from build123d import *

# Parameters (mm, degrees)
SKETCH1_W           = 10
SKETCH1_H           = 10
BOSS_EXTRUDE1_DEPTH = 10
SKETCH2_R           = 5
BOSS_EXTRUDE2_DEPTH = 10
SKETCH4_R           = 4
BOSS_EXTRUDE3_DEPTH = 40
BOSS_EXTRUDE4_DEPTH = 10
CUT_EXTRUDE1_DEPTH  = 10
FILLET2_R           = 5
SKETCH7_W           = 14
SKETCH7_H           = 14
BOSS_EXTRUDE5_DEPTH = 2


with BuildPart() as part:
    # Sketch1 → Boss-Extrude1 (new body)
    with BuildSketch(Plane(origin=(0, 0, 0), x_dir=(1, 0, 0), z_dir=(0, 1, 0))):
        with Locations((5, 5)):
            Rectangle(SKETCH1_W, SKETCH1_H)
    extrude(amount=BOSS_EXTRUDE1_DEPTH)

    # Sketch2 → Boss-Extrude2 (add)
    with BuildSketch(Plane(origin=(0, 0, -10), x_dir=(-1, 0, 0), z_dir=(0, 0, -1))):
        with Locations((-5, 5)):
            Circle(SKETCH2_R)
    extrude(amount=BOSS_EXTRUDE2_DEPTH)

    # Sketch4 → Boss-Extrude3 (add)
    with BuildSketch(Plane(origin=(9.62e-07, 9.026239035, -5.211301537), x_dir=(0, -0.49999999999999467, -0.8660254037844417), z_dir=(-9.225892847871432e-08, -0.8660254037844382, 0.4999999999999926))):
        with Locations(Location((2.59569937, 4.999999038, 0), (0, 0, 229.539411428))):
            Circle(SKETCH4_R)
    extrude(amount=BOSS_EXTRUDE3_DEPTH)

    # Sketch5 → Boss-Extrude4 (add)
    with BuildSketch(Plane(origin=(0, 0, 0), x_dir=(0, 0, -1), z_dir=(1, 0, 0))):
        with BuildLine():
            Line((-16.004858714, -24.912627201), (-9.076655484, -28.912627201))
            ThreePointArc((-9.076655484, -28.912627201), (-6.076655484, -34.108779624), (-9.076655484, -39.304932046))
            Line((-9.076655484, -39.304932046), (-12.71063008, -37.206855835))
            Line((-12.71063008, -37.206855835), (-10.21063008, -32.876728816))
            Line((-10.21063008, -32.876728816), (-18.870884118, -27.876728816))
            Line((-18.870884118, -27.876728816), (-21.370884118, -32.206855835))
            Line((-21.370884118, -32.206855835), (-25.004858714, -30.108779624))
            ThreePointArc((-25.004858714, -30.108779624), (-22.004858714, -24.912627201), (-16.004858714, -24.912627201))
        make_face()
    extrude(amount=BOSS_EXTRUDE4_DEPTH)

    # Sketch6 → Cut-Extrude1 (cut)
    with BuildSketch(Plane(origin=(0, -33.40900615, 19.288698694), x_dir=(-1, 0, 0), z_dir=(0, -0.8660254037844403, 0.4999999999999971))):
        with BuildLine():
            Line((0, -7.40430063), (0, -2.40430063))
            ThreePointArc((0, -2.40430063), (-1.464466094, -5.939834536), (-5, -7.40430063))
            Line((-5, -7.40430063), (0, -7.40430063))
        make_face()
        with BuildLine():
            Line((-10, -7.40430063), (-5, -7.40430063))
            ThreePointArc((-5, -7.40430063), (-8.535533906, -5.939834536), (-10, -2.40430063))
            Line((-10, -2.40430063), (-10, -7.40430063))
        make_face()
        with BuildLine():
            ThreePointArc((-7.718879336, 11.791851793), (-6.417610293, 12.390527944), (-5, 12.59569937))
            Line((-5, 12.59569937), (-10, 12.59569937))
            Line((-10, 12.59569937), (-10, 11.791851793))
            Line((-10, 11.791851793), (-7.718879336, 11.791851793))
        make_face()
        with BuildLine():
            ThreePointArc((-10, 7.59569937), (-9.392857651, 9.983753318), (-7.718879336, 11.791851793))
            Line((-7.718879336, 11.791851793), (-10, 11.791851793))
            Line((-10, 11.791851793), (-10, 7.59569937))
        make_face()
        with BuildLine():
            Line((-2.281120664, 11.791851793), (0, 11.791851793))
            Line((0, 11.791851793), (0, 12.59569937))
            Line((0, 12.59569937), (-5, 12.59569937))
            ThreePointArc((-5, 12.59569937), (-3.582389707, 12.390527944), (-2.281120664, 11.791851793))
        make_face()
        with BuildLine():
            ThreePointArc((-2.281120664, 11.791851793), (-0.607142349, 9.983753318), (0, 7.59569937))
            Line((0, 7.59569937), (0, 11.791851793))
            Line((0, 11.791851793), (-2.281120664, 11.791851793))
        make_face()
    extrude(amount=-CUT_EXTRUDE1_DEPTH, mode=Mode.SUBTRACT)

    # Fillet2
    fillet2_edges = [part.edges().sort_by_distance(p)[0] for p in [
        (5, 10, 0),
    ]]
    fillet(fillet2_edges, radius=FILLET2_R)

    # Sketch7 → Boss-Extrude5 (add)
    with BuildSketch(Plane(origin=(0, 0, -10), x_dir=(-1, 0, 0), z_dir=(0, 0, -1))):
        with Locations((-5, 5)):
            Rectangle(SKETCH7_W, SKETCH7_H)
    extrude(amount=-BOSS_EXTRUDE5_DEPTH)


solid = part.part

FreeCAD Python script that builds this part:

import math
import FreeCAD as App
import Part
import Sketcher
Q = App.Units.Quantity


def edges_at(feature, points):
    """Names of the edges that pass closest to the given points."""
    edges = feature.Shape.Edges
    near = lambda p: min(range(len(edges)), key=lambda i: edges[i].distToShape(Part.Vertex(*p))[0])
    return sorted({f"Edge{near(p) + 1}" for p in points})


def add_polygon(sketch, points):
    """Adds a closed chain of lines whose ends are joined by coincident constraints."""
    first, n = sketch.GeometryCount, len(points)
    for a, b in zip(points, points[1:] + points[:1]):
        sketch.addGeometry(Part.LineSegment(App.Vector(*a, 0), App.Vector(*b, 0)), False)
    for i in range(n):
        sketch.addConstraint(Sketcher.Constraint("Coincident", first + i, 2, first + (i + 1) % n, 1))

doc = App.newDocument("Part")
params = doc.addObject("Spreadsheet::Sheet", "Params")
for row, (alias, value) in enumerate([
    ("sketch1_width", "10 mm"),
    ("pad1_length", "10 mm"),
    ("sketch2_diameter", "10 mm"),
    ("pad2_length", "10 mm"),
    ("sketch3_diameter", "8 mm"),
    ("pad3_length", "40 mm"),
    ("sketch4_radius", "6 mm"),
    ("sketch4_length", "8 mm"),
    ("sketch4_length2", "5 mm"),
    ("sketch4_length3", "10 mm"),
    ("pad4_length", "10 mm"),
    ("sketch5_radius", "5 mm"),
    ("pocket1_length", "10 mm"),
    ("fillet_radius", "5 mm"),
    ("sketch6_width", "14 mm"),
    ("pad5_length", "2 mm"),
], start=1):
    params.set(f"A{row}", alias)
    params.set(f"B{row}", "=" + value)
    params.setAlias(f"B{row}", alias)

body = doc.addObject("PartDesign::Body", "Body")

# Sketch on XZ plane
sketch1 = doc.addObject("Sketcher::SketchObject", "Sketch")
body.addObject(sketch1)
sketch1.AttachmentSupport = (doc.XZ_Plane, [""])
sketch1.MapMode = "FlatFace"
add_polygon(sketch1, [(0, -10), (0, 0), (10, 0), (10, -10)])  # lines 0-3
sketch1.addConstraint(Sketcher.Constraint("Vertical", 0))
sketch1.addConstraint(Sketcher.Constraint("Horizontal", 1))
sketch1.addConstraint(Sketcher.Constraint("Vertical", 2))
sketch1.addConstraint(Sketcher.Constraint("Horizontal", 3))
sketch1.addConstraint(Sketcher.Constraint("Coincident", 0, 2, -1, 1))
sketch1.addConstraint(Sketcher.Constraint("Equal", 3, 0))
sketch1.addConstraint(Sketcher.Constraint("DistanceX", 1, 1, 1, 2, 10.0))
sketch1.setExpression("Constraints[10]", "Params.sketch1_width")
pad1 = doc.addObject("PartDesign::Pad", "Pad")
body.addObject(pad1)
pad1.Profile = sketch1
pad1.setExpression("Length", "Params.pad1_length")
pad1.Reversed = True

# Sketch on XY plane
sketch2 = doc.addObject("Sketcher::SketchObject", "Sketch001")
body.addObject(sketch2)
sketch2.AttachmentSupport = (doc.XY_Plane, [""])
sketch2.MapMode = "FlatFace"
sketch2.AttachmentOffset = App.Placement(App.Vector(0, 0, -10), App.Rotation())
sketch2.addGeometry(Part.Circle(App.Vector(5, 5, 0), App.Vector(0, 0, 1), 5), False)
sketch2.addConstraint(Sketcher.Constraint("Diameter", 0, 10.0))
sketch2.addConstraint(Sketcher.Constraint("DistanceX", -1, 1, 0, 3, 5.0))
sketch2.addConstraint(Sketcher.Constraint("DistanceY", -1, 1, 0, 3, 5.0))
sketch2.setExpression("Constraints[0]", "Params.sketch2_diameter")
pad2 = doc.addObject("PartDesign::Pad", "Pad001")
body.addObject(pad2)
pad2.Profile = sketch2
pad2.setExpression("Length", "Params.pad2_length")
pad2.Reversed = True

# Sketch on an angled plane
sketch3 = doc.addObject("Sketcher::SketchObject", "Sketch002")
body.addObject(sketch3)
sketch3.Placement = App.Placement(App.Vector(0.000001, 9.026239, -5.211302), App.Rotation(App.Vector(0, -0.5, -0.866025404), App.Vector(1, -0.00000008, 0.000000046), App.Vector(-0.000000092, -0.866025404, 0.5), "ZXY"))
sketch3.addGeometry(Part.Circle(App.Vector(2.595699, 4.999999, 0), App.Vector(0, 0, 1), 4), False)
sketch3.addConstraint(Sketcher.Constraint("Diameter", 0, 8.0))
sketch3.addConstraint(Sketcher.Constraint("DistanceY", -1, 1, 0, 3, 4.999999))
sketch3.addConstraint(Sketcher.Constraint("DistanceX", -1, 1, 0, 3, 2.595699))
sketch3.setExpression("Constraints[0]", "Params.sketch3_diameter")
pad3 = doc.addObject("PartDesign::Pad", "Pad002")
body.addObject(pad3)
pad3.Profile = sketch3
pad3.setExpression("Length", "Params.pad3_length")

# Sketch on YZ plane
sketch4 = doc.addObject("Sketcher::SketchObject", "Sketch003")
body.addObject(sketch4)
sketch4.AttachmentSupport = (doc.YZ_Plane, [""])
sketch4.MapMode = "FlatFace"
sketch4.addGeometry(Part.LineSegment(App.Vector(-28.912627, 9.076655, 0), App.Vector(-24.912627, 16.004859, 0)), False)
sketch4.addGeometry(Part.ArcOfCircle(Part.Circle(App.Vector(-30.10878, 19.004859, 0), App.Vector(0, 0, 1), 6), math.radians(-30), math.radians(90)), False)
sketch4.addGeometry(Part.LineSegment(App.Vector(-30.10878, 25.004859, 0), App.Vector(-32.206856, 21.370884, 0)), False)
sketch4.addGeometry(Part.LineSegment(App.Vector(-32.206856, 21.370884, 0), App.Vector(-27.876729, 18.870884, 0)), False)
sketch4.addGeometry(Part.LineSegment(App.Vector(-27.876729, 18.870884, 0), App.Vector(-32.876729, 10.21063, 0)), False)
sketch4.addGeometry(Part.LineSegment(App.Vector(-32.876729, 10.21063, 0), App.Vector(-37.206856, 12.71063, 0)), False)
sketch4.addGeometry(Part.LineSegment(App.Vector(-37.206856, 12.71063, 0), App.Vector(-39.304932, 9.076655, 0)), False)
sketch4.addGeometry(Part.ArcOfCircle(Part.Circle(App.Vector(-34.10878, 12.076655, 0), App.Vector(0, 0, 1), 6), math.radians(-150), math.radians(-30)), False)
sketch4.addConstraint(Sketcher.Constraint("Tangent", 0, 2, 1, 1))
sketch4.addConstraint(Sketcher.Constraint("Coincident", 1, 2, 2, 1))
sketch4.addConstraint(Sketcher.Constraint("Coincident", 2, 2, 3, 1))
sketch4.addConstraint(Sketcher.Constraint("Coincident", 3, 2, 4, 1))
sketch4.addConstraint(Sketcher.Constraint("Coincident", 4, 2, 5, 1))
sketch4.addConstraint(Sketcher.Constraint("Coincident", 5, 2, 6, 1))
sketch4.addConstraint(Sketcher.Constraint("Coincident", 6, 2, 7, 1))
sketch4.addConstraint(Sketcher.Constraint("Tangent", 7, 2, 0, 1))
sketch4.addConstraint(Sketcher.Constraint("Equal", 1, 7))
sketch4.addConstraint(Sketcher.Constraint("Parallel", 0, 2))
sketch4.addConstraint(Sketcher.Constraint("Perpendicular", 2, 3))
sketch4.addConstraint(Sketcher.Constraint("Perpendicular", 3, 4))
sketch4.addConstraint(Sketcher.Constraint("Perpendicular", 4, 5))
sketch4.addConstraint(Sketcher.Constraint("Perpendicular", 5, 6))
sketch4.addConstraint(Sketcher.Constraint("Horizontal", 6, 2, 7, 2))
sketch4.addConstraint(Sketcher.Constraint("Equal", 3, 5))
sketch4.addConstraint(Sketcher.Constraint("Equal", 2, 6))
sketch4.addConstraint(Sketcher.Constraint("Radius", 1, 6.0))
sketch4.addConstraint(Sketcher.Constraint("Angle", 0, Q("60 deg")))
sketch4.addConstraint(Sketcher.Constraint("Distance", 0, 8.0))
sketch4.addConstraint(Sketcher.Constraint("Distance", 3, 5.0))
sketch4.addConstraint(Sketcher.Constraint("Distance", 4, 10.0))
sketch4.addConstraint(Sketcher.Constraint("DistanceX", 1, 3, -1, 1, 30.10878))
sketch4.addConstraint(Sketcher.Constraint("DistanceY", -1, 1, 1, 3, 19.004859))
sketch4.setExpression("Constraints[17]", "Params.sketch4_radius")
sketch4.setExpression("Constraints[19]", "Params.sketch4_length")
sketch4.setExpression("Constraints[20]", "Params.sketch4_length2")
sketch4.setExpression("Constraints[21]", "Params.sketch4_length3")
pad4 = doc.addObject("PartDesign::Pad", "Pad003")
body.addObject(pad4)
pad4.Profile = sketch4
pad4.setExpression("Length", "Params.pad4_length")

# Sketch on an angled plane
sketch5 = doc.addObject("Sketcher::SketchObject", "Sketch004")
body.addObject(sketch5)
sketch5.Placement = App.Placement(App.Vector(0, -33.409006, 19.288699), App.Rotation(App.Vector(-1, 0, 0), App.Vector(0, -0.5, -0.866025404), App.Vector(0, -0.866025404, 0.5), "ZXY"))
sketch5.addGeometry(Part.LineSegment(App.Vector(0, -7.404301, 0), App.Vector(0, -2.404301, 0)), False)
sketch5.addGeometry(Part.ArcOfCircle(Part.Circle(App.Vector(-5, -2.404301, 0), App.Vector(0, 0, 1), 5), math.radians(-90), math.radians(0)), False)
sketch5.addGeometry(Part.LineSegment(App.Vector(-5, -7.404301, 0), App.Vector(0, -7.404301, 0)), False)
sketch5.addGeometry(Part.LineSegment(App.Vector(-10, -7.404301, 0), App.Vector(-5, -7.404301, 0)), False)
sketch5.addGeometry(Part.ArcOfCircle(Part.Circle(App.Vector(-5, -2.404301, 0), App.Vector(0, 0, 1), 5), math.radians(180), math.radians(270)), False)
sketch5.addGeometry(Part.LineSegment(App.Vector(-10, -2.404301, 0), App.Vector(-10, -7.404301, 0)), False)
sketch5.addGeometry(Part.ArcOfCircle(Part.Circle(App.Vector(-5, 7.595699, 0), App.Vector(0, 0, 1), 5), math.radians(90), math.radians(122.94105)), False)
sketch5.addGeometry(Part.LineSegment(App.Vector(-5, 12.595699, 0), App.Vector(-10, 12.595699, 0)), False)
sketch5.addGeometry(Part.LineSegment(App.Vector(-10, 12.595699, 0), App.Vector(-10, 7.595699, 0)), False)
sketch5.addGeometry(Part.ArcOfCircle(Part.Circle(App.Vector(-5, 7.595699, 0), App.Vector(0, 0, 1), 5), math.radians(122.94105), math.radians(180)), False)
sketch5.addGeometry(Part.LineSegment(App.Vector(0, 12.595699, 0), App.Vector(-5, 12.595699, 0)), False)
sketch5.addGeometry(Part.ArcOfCircle(Part.Circle(App.Vector(-5, 7.595699, 0), App.Vector(0, 0, 1), 5), math.radians(57.05895), math.radians(90)), False)
sketch5.addGeometry(Part.ArcOfCircle(Part.Circle(App.Vector(-5, 7.595699, 0), App.Vector(0, 0, 1), 5), math.radians(0), math.radians(57.05895)), False)
sketch5.addGeometry(Part.LineSegment(App.Vector(0, 7.595699, 0), App.Vector(0, 12.595699, 0)), False)
sketch5.addConstraint(Sketcher.Constraint("Tangent", 0, 2, 1, 2))
sketch5.addConstraint(Sketcher.Constraint("Tangent", 1, 1, 2, 1))
sketch5.addConstraint(Sketcher.Constraint("Coincident", 2, 2, 0, 1))
sketch5.addConstraint(Sketcher.Constraint("Tangent", 3, 2, 4, 2))
sketch5.addConstraint(Sketcher.Constraint("Tangent", 4, 1, 5, 1))
sketch5.addConstraint(Sketcher.Constraint("Coincident", 5, 2, 3, 1))
sketch5.addConstraint(Sketcher.Constraint("Tangent", 6, 1, 7, 1))
sketch5.addConstraint(Sketcher.Constraint("Coincident", 7, 2, 8, 1))
sketch5.addConstraint(Sketcher.Constraint("Tangent", 8, 2, 9, 2))
sketch5.addConstraint(Sketcher.Constraint("Tangent", 9, 1, 6, 2))
sketch5.addConstraint(Sketcher.Constraint("Tangent", 10, 2, 11, 2))
sketch5.addConstraint(Sketcher.Constraint("Tangent", 11, 1, 12, 2))
sketch5.addConstraint(Sketcher.Constraint("Tangent", 12, 1, 13, 1))
sketch5.addConstraint(Sketcher.Constraint("Coincident", 13, 2, 10, 1))
sketch5.addConstraint(Sketcher.Constraint("Vertical", 0))
sketch5.addConstraint(Sketcher.Constraint("Horizontal", 2))
sketch5.addConstraint(Sketcher.Constraint("Horizontal", 3))
sketch5.addConstraint(Sketcher.Constraint("Vertical", 5))
sketch5.addConstraint(Sketcher.Constraint("Horizontal", 7))
sketch5.addConstraint(Sketcher.Constraint("Vertical", 8))
sketch5.addConstraint(Sketcher.Constraint("Horizontal", 10))
sketch5.addConstraint(Sketcher.Constraint("Vertical", 13))
sketch5.addConstraint(Sketcher.Constraint("Coincident", 4, 3, 1, 3))
sketch5.addConstraint(Sketcher.Constraint("Coincident", 11, 3, 6, 3))
sketch5.addConstraint(Sketcher.Constraint("Equal", 1, 4))
sketch5.addConstraint(Sketcher.Constraint("Equal", 4, 6))
sketch5.addConstraint(Sketcher.Constraint("Equal", 6, 9))
sketch5.addConstraint(Sketcher.Constraint("Equal", 9, 11))
sketch5.addConstraint(Sketcher.Constraint("Equal", 11, 12))
sketch5.addConstraint(Sketcher.Constraint("PointOnObject", 0, 2, -2))
sketch5.addConstraint(Sketcher.Constraint("PointOnObject", 12, 1, -2))
sketch5.addConstraint(Sketcher.Constraint("Horizontal", 9, 1, 11, 1))
sketch5.addConstraint(Sketcher.Constraint("Radius", 1, 5.0))
sketch5.addConstraint(Sketcher.Constraint("DistanceY", 1, 3, 6, 3, 10.0))
sketch5.addConstraint(Sketcher.Constraint("DistanceY", 1, 3, -1, 1, 2.404301))
sketch5.addConstraint(Sketcher.Constraint("DistanceX", 9, 1, -1, 1, 7.718879))
sketch5.setExpression("Constraints[32]", "Params.sketch5_radius")
pocket1 = doc.addObject("PartDesign::Pocket", "Pocket")
body.addObject(pocket1)
pocket1.Profile = sketch5
pocket1.setExpression("Length", "Params.pocket1_length")
doc.recompute()

fillet = doc.addObject("PartDesign::Fillet", "Fillet")
body.addObject(fillet)
fillet.Base = (pocket1, edges_at(pocket1, [(5, 10, 0)]))
fillet.setExpression("Radius", "Params.fillet_radius")

# Sketch on XY plane
sketch6 = doc.addObject("Sketcher::SketchObject", "Sketch005")
body.addObject(sketch6)
sketch6.AttachmentSupport = (doc.XY_Plane, [""])
sketch6.MapMode = "FlatFace"
sketch6.AttachmentOffset = App.Placement(App.Vector(0, 0, -10), App.Rotation())
add_polygon(sketch6, [(12, 12), (12, -2), (-2, -2), (-2, 12)])  # lines 0-3
sketch6.addConstraint(Sketcher.Constraint("Vertical", 0))
sketch6.addConstraint(Sketcher.Constraint("Horizontal", 1))
sketch6.addConstraint(Sketcher.Constraint("Vertical", 2))
sketch6.addConstraint(Sketcher.Constraint("Horizontal", 3))
sketch6.addConstraint(Sketcher.Constraint("Equal", 3, 0))
sketch6.addConstraint(Sketcher.Constraint("DistanceX", 1, 2, 1, 1, 14.0))
sketch6.addConstraint(Sketcher.Constraint("DistanceX", -1, 1, 0, 2, 12.0))
sketch6.addConstraint(Sketcher.Constraint("DistanceY", 0, 2, -1, 1, 2.0))
sketch6.setExpression("Constraints[9]", "Params.sketch6_width")
pad5 = doc.addObject("PartDesign::Pad", "Pad004")
body.addObject(pad5)
pad5.Profile = sketch6
pad5.setExpression("Length", "Params.pad5_length")

doc.recompute()
